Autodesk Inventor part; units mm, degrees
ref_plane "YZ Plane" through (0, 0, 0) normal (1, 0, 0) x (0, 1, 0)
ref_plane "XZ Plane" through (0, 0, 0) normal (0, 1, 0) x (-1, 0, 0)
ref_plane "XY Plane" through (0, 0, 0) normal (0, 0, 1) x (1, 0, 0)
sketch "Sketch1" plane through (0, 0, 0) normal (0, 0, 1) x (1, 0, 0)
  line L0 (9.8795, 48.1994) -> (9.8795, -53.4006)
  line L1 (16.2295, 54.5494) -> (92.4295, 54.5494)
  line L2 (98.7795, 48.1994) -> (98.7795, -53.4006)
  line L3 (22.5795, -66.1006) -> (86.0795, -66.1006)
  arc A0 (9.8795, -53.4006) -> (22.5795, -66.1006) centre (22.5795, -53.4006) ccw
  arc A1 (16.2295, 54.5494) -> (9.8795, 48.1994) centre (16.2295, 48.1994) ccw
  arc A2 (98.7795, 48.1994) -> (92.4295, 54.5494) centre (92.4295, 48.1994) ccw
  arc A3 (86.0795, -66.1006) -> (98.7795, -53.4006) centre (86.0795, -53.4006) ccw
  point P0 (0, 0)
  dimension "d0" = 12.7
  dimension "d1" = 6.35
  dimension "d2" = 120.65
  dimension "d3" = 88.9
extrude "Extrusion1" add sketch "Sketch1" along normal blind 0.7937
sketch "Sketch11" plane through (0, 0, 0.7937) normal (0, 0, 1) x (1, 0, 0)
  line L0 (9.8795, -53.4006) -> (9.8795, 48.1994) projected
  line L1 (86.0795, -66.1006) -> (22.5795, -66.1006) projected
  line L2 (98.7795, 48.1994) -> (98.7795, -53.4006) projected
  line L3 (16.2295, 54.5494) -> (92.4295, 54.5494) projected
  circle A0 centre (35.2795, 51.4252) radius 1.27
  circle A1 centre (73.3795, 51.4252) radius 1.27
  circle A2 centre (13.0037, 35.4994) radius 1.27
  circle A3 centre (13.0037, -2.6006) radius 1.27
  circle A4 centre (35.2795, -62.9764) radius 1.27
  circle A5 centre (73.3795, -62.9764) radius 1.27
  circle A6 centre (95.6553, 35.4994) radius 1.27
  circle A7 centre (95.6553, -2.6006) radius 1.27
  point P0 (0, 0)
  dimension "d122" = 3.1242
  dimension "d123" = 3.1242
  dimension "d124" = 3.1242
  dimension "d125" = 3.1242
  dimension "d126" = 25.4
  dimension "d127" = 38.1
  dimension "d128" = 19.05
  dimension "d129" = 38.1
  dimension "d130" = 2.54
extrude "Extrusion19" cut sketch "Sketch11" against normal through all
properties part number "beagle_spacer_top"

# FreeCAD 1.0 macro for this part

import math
import FreeCAD as App
import Part
import Sketcher
Q = App.Units.Quantity

doc = App.newDocument("Part")
body = doc.addObject("PartDesign::Body", "Body")

# Sketch on XY plane
sketch1 = body.newObject("Sketcher::SketchObject", "Sketch")
sketch1.AttachmentSupport = (doc.getObject("XY_Plane"), [""])
sketch1.MapMode = "FlatFace"
sketch1.addGeometry(Part.ArcOfCircle(Part.Circle(App.Vector(16, 48, 0), App.Vector(0, 0, 1), 6), math.radians(90), math.radians(180)), False)
sketch1.addGeometry(Part.LineSegment(App.Vector(10, 48, 0), App.Vector(10, -53, 0)), False)
sketch1.addGeometry(Part.ArcOfCircle(Part.Circle(App.Vector(23, -53, 0), App.Vector(0, 0, 1), 13), math.radians(180), math.radians(270)), False)
sketch1.addGeometry(Part.LineSegment(App.Vector(23, -66, 0), App.Vector(86, -66, 0)), False)
sketch1.addGeometry(Part.ArcOfCircle(Part.Circle(App.Vector(86, -53, 0), App.Vector(0, 0, 1), 13), math.radians(-90), math.radians(0)), False)
sketch1.addGeometry(Part.LineSegment(App.Vector(99, -53, 0), App.Vector(99, 48, 0)), False)
sketch1.addGeometry(Part.ArcOfCircle(Part.Circle(App.Vector(92, 48, 0), App.Vector(0, 0, 1), 6), math.radians(0), math.radians(90)), False)
sketch1.addGeometry(Part.LineSegment(App.Vector(92, 55, 0), App.Vector(16, 55, 0)), False)
sketch1.addConstraint(Sketcher.Constraint("Tangent", 0, 2, 1, 1))
sketch1.addConstraint(Sketcher.Constraint("Tangent", 1, 2, 2, 1))
sketch1.addConstraint(Sketcher.Constraint("Tangent", 2, 2, 3, 1))
sketch1.addConstraint(Sketcher.Constraint("Tangent", 3, 2, 4, 1))
sketch1.addConstraint(Sketcher.Constraint("Tangent", 4, 2, 5, 1))
sketch1.addConstraint(Sketcher.Constraint("Tangent", 5, 2, 6, 1))
sketch1.addConstraint(Sketcher.Constraint("Tangent", 6, 2, 7, 1))
sketch1.addConstraint(Sketcher.Constraint("Tangent", 7, 2, 0, 1))
sketch1.addConstraint(Sketcher.Constraint("Vertical", 1))
sketch1.addConstraint(Sketcher.Constraint("Horizontal", 3))
sketch1.addConstraint(Sketcher.Constraint("Vertical", 5))
sketch1.addConstraint(Sketcher.Constraint("Horizontal", 7))
sketch1.addConstraint(Sketcher.Constraint("Equal", 2, 4))
sketch1.addConstraint(Sketcher.Constraint("Equal", 0, 6))
sketch1.addConstraint(Sketcher.Constraint("Radius", 2, Q("0.5 in")))
sketch1.addConstraint(Sketcher.Constraint("Radius", 0, Q("0.25 in")))
sketch1.addConstraint(Sketcher.Constraint("DistanceX", 1, 2, 4, 2, Q("3.5 in")))
sketch1.addConstraint(Sketcher.Constraint("DistanceY", 1, 2, 1, 1, Q("4 in")))
sketch1.addConstraint(Sketcher.Constraint("DistanceX", -1, 1, 0, 3, Q("16.2295 mm")))
sketch1.addConstraint(Sketcher.Constraint("DistanceY", -1, 1, 0, 3, Q("48.1994 mm")))
pad1 = body.newObject("PartDesign::Pad", "Pad")
pad1.Profile = sketch1
pad1.Length = Q("0.031248 in")

# Sketch on XY plane
sketch2 = body.newObject("Sketcher::SketchObject", "Sketch001")
sketch2.AttachmentSupport = (doc.getObject("XY_Plane"), [""])
sketch2.MapMode = "FlatFace"
sketch2.AttachmentOffset = App.Placement(App.Vector(0, 0, 0.031248 * 25.4), App.Rotation())
sketch2.addGeometry(Part.Circle(App.Vector(35.3, 51.4, 0), App.Vector(0, 0, 1), 1.3), False)
sketch2.addGeometry(Part.Circle(App.Vector(73.4, 51.4, 0), App.Vector(0, 0, 1), 1.3), False)
sketch2.addGeometry(Part.Circle(App.Vector(13, 35.5, 0), App.Vector(0, 0, 1), 1.3), False)
sketch2.addGeometry(Part.Circle(App.Vector(13, -2.6, 0), App.Vector(0, 0, 1), 1.3), False)
sketch2.addGeometry(Part.Circle(App.Vector(35.3, -63, 0), App.Vector(0, 0, 1), 1.3), False)
sketch2.addGeometry(Part.Circle(App.Vector(73.4, -63, 0), App.Vector(0, 0, 1), 1.3), False)
sketch2.addGeometry(Part.Circle(App.Vector(95.7, 35.5, 0), App.Vector(0, 0, 1), 1.3), False)
sketch2.addGeometry(Part.Circle(App.Vector(95.7, -2.6, 0), App.Vector(0, 0, 1), 1.3), False)
sketch2.addConstraint(Sketcher.Constraint("Equal", 0, 1))
sketch2.addConstraint(Sketcher.Constraint("Equal", 1, 2))
sketch2.addConstraint(Sketcher.Constraint("Equal", 2, 3))
sketch2.addConstraint(Sketcher.Constraint("Equal", 3, 4))
sketch2.addConstraint(Sketcher.Constraint("Equal", 4, 5))
sketch2.addConstraint(Sketcher.Constraint("Equal", 5, 6))
sketch2.addConstraint(Sketcher.Constraint("Equal", 6, 7))
sketch2.addConstraint(Sketcher.Constraint("Horizontal", 0, 3, 1, 3))
sketch2.addConstraint(Sketcher.Constraint("Horizontal", 4, 3, 5, 3))
sketch2.addConstraint(Sketcher.Constraint("Horizontal", 2, 3, 6, 3))
sketch2.addConstraint(Sketcher.Constraint("Horizontal", 3, 3, 7, 3))
sketch2.addConstraint(Sketcher.Constraint("Vertical", 2, 3, 3, 3))
sketch2.addConstraint(Sketcher.Constraint("Vertical", 0, 3, 4, 3))
sketch2.addConstraint(Sketcher.Constraint("Vertical", 1, 3, 5, 3))
sketch2.addConstraint(Sketcher.Constraint("Vertical", 6, 3, 7, 3))
sketch2.addConstraint(Sketcher.Constraint("Diameter", 0, Q("0.1 in")))
sketch2.addConstraint(Sketcher.Constraint("DistanceX", 0, 3, 1, 3, Q("1.5 in")))
sketch2.addConstraint(Sketcher.Constraint("DistanceY", 3, 3, 2, 3, Q("1.5 in")))
sketch2.addConstraint(Sketcher.Constraint("DistanceX", 2, 3, 0, 3, Q("0.877 in")))
sketch2.addConstraint(Sketcher.Constraint("DistanceY", 2, 3, 0, 3, Q("0.627 in")))
sketch2.addConstraint(Sketcher.Constraint("DistanceY", 4, 3, 3, 3, Q("2.377 in")))
sketch2.addConstraint(Sketcher.Constraint("DistanceX", 1, 3, 6, 3, Q("0.877 in")))
sketch2.addConstraint(Sketcher.Constraint("DistanceX", -1, 1, 0, 3, Q("35.2795 mm")))
sketch2.addConstraint(Sketcher.Constraint("DistanceY", -1, 1, 0, 3, Q("51.4252 mm")))
pocket1 = body.newObject("PartDesign::Pocket", "Pocket")
pocket1.Profile = sketch2
pocket1.Type = "ThroughAll"

doc.recompute()
